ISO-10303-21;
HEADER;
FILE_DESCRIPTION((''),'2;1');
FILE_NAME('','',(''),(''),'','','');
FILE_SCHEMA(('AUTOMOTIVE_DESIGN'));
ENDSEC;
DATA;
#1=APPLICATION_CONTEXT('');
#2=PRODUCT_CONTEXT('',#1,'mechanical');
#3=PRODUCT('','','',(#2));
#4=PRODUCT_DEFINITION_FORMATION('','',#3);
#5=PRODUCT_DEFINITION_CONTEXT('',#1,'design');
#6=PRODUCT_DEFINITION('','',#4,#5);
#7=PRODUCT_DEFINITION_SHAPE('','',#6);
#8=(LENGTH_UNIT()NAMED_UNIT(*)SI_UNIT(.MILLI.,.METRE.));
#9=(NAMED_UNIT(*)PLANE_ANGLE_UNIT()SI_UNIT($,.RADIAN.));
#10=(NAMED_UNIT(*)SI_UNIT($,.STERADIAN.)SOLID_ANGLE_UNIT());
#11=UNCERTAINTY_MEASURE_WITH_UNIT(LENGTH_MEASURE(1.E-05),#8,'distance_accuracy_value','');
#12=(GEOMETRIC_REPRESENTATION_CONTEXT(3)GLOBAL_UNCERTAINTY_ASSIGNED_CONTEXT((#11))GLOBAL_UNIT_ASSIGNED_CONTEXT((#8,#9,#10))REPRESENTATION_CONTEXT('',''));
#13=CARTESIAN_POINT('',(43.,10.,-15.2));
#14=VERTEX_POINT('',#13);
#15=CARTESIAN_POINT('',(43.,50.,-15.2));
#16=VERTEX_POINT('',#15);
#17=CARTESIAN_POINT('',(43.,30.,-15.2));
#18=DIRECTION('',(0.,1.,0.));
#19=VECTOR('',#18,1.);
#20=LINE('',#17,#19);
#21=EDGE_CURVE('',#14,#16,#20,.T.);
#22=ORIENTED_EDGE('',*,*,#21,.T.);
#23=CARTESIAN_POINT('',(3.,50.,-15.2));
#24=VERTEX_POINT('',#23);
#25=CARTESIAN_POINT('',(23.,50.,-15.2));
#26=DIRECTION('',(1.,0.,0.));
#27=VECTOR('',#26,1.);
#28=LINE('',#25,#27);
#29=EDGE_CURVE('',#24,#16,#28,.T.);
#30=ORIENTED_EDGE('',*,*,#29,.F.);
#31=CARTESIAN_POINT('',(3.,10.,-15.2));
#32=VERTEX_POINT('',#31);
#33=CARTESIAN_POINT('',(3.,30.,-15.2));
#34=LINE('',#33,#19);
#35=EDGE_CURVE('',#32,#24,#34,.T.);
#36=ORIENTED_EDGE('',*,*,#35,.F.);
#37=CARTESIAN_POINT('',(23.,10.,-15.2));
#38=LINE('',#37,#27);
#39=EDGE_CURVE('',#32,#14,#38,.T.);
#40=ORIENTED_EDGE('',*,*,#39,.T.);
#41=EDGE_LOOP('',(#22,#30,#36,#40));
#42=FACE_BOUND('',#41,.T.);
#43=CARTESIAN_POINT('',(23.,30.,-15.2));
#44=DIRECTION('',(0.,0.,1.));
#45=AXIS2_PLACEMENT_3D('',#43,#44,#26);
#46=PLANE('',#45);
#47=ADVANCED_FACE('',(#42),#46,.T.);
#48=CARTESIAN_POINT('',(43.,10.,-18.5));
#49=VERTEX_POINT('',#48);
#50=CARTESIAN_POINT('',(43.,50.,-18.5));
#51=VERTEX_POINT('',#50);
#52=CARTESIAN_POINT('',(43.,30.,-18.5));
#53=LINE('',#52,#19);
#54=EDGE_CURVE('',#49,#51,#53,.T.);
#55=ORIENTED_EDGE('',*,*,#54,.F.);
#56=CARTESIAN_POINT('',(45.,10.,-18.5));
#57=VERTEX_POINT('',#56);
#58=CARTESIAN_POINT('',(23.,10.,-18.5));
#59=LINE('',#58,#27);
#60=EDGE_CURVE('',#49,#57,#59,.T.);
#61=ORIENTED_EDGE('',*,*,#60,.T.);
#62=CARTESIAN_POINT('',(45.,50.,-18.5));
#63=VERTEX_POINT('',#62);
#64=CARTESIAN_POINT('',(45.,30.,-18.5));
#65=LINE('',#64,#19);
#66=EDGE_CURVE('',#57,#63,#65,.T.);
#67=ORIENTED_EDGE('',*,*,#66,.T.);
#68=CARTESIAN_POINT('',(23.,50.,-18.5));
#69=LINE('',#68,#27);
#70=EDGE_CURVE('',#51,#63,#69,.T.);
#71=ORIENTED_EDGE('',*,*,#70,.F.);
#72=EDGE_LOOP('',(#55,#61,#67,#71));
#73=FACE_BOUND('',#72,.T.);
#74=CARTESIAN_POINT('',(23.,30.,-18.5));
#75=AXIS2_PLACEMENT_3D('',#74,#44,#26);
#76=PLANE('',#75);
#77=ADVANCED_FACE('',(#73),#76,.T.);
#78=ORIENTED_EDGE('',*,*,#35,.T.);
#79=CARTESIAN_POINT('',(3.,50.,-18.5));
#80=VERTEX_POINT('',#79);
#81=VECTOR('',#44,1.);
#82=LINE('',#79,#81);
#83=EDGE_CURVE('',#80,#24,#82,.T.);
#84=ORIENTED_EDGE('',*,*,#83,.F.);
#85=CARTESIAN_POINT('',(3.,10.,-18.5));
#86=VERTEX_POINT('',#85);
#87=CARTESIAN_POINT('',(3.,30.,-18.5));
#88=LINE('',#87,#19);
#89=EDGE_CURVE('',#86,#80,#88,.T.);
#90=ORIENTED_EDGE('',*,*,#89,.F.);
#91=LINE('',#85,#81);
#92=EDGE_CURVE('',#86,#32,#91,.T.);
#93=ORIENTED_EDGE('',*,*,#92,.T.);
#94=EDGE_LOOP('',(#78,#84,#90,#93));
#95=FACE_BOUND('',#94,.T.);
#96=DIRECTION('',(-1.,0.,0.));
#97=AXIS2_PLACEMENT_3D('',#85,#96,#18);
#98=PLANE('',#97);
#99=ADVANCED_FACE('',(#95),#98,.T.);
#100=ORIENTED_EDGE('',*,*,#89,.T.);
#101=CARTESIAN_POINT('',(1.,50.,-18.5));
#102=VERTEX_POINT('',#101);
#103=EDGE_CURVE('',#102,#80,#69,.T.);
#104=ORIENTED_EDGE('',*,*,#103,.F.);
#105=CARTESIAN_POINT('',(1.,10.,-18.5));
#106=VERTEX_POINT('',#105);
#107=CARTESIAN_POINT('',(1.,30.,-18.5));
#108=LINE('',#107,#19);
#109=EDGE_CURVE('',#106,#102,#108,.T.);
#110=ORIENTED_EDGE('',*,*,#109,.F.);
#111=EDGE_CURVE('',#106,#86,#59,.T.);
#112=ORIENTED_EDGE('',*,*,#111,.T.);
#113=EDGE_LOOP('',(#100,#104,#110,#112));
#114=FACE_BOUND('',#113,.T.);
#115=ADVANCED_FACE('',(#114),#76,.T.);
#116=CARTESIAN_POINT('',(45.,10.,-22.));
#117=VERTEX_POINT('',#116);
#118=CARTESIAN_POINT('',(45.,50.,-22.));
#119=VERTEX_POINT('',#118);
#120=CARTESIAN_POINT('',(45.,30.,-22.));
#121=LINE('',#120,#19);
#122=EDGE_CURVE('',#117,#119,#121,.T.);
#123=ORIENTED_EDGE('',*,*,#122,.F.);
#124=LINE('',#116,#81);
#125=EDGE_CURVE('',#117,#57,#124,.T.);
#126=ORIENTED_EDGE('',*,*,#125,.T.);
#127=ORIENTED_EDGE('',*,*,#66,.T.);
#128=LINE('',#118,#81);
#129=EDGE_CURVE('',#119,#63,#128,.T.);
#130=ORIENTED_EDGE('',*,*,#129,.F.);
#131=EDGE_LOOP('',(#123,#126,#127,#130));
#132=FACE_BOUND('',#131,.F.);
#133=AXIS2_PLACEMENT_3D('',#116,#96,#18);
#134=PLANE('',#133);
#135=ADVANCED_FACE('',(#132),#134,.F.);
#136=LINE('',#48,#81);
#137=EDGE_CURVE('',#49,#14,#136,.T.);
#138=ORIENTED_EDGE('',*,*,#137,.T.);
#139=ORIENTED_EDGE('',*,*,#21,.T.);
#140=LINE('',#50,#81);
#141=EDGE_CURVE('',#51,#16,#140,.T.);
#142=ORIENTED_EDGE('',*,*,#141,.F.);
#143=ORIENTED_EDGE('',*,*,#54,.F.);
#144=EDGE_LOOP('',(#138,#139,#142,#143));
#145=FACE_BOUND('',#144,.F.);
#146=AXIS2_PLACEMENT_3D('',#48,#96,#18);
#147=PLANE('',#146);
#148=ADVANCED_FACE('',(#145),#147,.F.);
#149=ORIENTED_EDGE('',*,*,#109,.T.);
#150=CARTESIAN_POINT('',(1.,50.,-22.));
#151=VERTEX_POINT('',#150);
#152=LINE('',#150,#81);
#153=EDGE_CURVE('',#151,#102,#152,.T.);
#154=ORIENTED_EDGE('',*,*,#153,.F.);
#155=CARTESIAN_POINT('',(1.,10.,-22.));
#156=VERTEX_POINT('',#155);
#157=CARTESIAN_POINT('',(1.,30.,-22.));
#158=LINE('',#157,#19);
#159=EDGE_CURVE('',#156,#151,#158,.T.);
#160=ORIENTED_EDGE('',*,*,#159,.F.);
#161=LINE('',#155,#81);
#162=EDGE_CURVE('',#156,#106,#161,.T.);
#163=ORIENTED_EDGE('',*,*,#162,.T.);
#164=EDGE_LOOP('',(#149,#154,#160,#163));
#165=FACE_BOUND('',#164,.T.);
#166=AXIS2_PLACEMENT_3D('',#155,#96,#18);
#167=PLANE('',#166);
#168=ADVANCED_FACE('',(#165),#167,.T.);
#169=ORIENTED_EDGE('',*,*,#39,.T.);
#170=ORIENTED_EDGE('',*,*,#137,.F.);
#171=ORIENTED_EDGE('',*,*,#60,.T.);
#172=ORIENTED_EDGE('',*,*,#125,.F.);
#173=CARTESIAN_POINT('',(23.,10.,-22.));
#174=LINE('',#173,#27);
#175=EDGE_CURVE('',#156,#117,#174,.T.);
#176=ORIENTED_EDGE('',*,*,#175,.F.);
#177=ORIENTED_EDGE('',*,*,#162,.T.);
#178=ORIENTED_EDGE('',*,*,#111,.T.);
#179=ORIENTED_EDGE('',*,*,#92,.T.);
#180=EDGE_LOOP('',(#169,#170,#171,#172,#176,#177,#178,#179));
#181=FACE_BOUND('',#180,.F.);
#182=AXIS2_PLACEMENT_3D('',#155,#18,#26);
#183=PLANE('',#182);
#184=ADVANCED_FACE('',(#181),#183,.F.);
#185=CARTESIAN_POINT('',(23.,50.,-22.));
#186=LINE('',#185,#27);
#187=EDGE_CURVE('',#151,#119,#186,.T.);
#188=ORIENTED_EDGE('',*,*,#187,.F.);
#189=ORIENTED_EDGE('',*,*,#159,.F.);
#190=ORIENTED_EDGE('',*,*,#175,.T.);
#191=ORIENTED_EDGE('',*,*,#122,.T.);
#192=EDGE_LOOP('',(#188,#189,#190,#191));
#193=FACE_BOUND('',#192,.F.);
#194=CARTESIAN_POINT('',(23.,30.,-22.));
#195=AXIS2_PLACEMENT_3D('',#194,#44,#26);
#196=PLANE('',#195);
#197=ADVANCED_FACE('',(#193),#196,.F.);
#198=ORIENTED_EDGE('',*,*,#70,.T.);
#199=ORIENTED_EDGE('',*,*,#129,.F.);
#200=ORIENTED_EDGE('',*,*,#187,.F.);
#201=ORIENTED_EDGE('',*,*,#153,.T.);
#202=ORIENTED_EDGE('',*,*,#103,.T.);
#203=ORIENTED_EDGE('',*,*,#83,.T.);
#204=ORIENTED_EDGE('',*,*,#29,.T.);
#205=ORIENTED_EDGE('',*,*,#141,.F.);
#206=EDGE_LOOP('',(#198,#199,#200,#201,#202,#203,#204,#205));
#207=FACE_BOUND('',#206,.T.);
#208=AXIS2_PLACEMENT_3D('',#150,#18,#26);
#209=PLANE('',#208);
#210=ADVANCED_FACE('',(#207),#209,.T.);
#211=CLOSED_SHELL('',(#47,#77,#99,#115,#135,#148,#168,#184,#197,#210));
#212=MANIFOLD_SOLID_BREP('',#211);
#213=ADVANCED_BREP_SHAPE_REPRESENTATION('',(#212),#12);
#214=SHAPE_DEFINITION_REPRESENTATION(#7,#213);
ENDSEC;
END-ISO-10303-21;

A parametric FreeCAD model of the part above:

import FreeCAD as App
import Part
import Sketcher
from FreeCAD import Vector
Q = App.Units.Quantity

doc = App.newDocument("Part")
body = doc.addObject("PartDesign::Body", "Body")

sketch1 = doc.addObject("Sketcher::SketchObject", "Sketch")
body.addObject(sketch1)
sketch1.AttachmentSupport = (doc.XY_Plane, [""])
sketch1.MapMode = "FlatFace"
sketch1.AttachmentOffset = App.Placement(Vector(0, 0, -3.5), App.Rotation())
sketch1.addGeometry([
    Part.LineSegment(Vector(-2, 40, 0), Vector(-2, 0, 0)),
    Part.LineSegment(Vector(-2, 0, 0), Vector(42, 0, 0)),
    Part.LineSegment(Vector(42, 0, 0), Vector(42, 40, 0)),
    Part.LineSegment(Vector(42, 40, 0), Vector(-2, 40, 0)),
], False)
sketch1.addConstraint([
    Sketcher.Constraint("Coincident", 0, 2, 1, 1),
    Sketcher.Constraint("Coincident", 1, 2, 2, 1),
    Sketcher.Constraint("Coincident", 2, 2, 3, 1),
    Sketcher.Constraint("Coincident", 3, 2, 0, 1),
    Sketcher.Constraint("Vertical", 0),
    Sketcher.Constraint("Horizontal", 1),
    Sketcher.Constraint("Vertical", 2),
    Sketcher.Constraint("Horizontal", 3),
    Sketcher.Constraint("PointOnObject", 0, 2, -1),
    Sketcher.Constraint("DistanceX", 1, 1, 1, 2, Q("44 mm")),
    Sketcher.Constraint("DistanceY", 0, 2, 0, 1, Q("40 mm")),
    Sketcher.Constraint("DistanceX", 0, 2, -1, 1, Q("2 mm")),
])
pad1 = doc.addObject("PartDesign::Pad", "Pad")
body.addObject(pad1)
pad1.Profile = sketch1
pad1.Length = 3.5
body2 = doc.addObject("PartDesign::Body", "Body001")

sketch2 = doc.addObject("Sketcher::SketchObject", "Sketch001")
body2.addObject(sketch2)
sketch2.AttachmentSupport = (doc.getObject("XY_Plane001"), [""])
sketch2.MapMode = "FlatFace"
sketch2.addGeometry([
    Part.LineSegment(Vector(0, 40, 0), Vector(0, 0, 0)),
    Part.LineSegment(Vector(0, 0, 0), Vector(40, 0, 0)),
    Part.LineSegment(Vector(40, 0, 0), Vector(40, 40, 0)),
    Part.LineSegment(Vector(40, 40, 0), Vector(0, 40, 0)),
], False)
sketch2.addConstraint([
    Sketcher.Constraint("Coincident", 0, 2, 1, 1),
    Sketcher.Constraint("Coincident", 1, 2, 2, 1),
    Sketcher.Constraint("Coincident", 2, 2, 3, 1),
    Sketcher.Constraint("Coincident", 3, 2, 0, 1),
    Sketcher.Constraint("Vertical", 0),
    Sketcher.Constraint("Horizontal", 1),
    Sketcher.Constraint("Vertical", 2),
    Sketcher.Constraint("Horizontal", 3),
    Sketcher.Constraint("Coincident", 0, 2, -1, 1),
    Sketcher.Constraint("Equal", 3, 0),
    Sketcher.Constraint("DistanceX", 1, 1, 1, 2, Q("40 mm")),
])
pad2 = doc.addObject("PartDesign::Pad", "Pad001")
body2.addObject(pad2)
pad2.Profile = sketch2
pad2.Length = 3.3
doc.recompute()

boolean = doc.addObject("PartDesign::Boolean", "Boolean")
body2.addObject(boolean)
boolean.Type = "Fuse"
boolean.addObjects([body])
body3 = doc.addObject("PartDesign::Body", "Body002")
doc.recompute()

body2.Placement = App.Placement(Vector(3, 10, -18.5), App.Rotation(Vector(0, 0, 1), 0))
boolean2 = doc.addObject("PartDesign::Boolean", "Boolean001")
body3.addObject(boolean2)
boolean2.Type = "Fuse"
boolean2.addObjects([body2])

doc.recompute()
